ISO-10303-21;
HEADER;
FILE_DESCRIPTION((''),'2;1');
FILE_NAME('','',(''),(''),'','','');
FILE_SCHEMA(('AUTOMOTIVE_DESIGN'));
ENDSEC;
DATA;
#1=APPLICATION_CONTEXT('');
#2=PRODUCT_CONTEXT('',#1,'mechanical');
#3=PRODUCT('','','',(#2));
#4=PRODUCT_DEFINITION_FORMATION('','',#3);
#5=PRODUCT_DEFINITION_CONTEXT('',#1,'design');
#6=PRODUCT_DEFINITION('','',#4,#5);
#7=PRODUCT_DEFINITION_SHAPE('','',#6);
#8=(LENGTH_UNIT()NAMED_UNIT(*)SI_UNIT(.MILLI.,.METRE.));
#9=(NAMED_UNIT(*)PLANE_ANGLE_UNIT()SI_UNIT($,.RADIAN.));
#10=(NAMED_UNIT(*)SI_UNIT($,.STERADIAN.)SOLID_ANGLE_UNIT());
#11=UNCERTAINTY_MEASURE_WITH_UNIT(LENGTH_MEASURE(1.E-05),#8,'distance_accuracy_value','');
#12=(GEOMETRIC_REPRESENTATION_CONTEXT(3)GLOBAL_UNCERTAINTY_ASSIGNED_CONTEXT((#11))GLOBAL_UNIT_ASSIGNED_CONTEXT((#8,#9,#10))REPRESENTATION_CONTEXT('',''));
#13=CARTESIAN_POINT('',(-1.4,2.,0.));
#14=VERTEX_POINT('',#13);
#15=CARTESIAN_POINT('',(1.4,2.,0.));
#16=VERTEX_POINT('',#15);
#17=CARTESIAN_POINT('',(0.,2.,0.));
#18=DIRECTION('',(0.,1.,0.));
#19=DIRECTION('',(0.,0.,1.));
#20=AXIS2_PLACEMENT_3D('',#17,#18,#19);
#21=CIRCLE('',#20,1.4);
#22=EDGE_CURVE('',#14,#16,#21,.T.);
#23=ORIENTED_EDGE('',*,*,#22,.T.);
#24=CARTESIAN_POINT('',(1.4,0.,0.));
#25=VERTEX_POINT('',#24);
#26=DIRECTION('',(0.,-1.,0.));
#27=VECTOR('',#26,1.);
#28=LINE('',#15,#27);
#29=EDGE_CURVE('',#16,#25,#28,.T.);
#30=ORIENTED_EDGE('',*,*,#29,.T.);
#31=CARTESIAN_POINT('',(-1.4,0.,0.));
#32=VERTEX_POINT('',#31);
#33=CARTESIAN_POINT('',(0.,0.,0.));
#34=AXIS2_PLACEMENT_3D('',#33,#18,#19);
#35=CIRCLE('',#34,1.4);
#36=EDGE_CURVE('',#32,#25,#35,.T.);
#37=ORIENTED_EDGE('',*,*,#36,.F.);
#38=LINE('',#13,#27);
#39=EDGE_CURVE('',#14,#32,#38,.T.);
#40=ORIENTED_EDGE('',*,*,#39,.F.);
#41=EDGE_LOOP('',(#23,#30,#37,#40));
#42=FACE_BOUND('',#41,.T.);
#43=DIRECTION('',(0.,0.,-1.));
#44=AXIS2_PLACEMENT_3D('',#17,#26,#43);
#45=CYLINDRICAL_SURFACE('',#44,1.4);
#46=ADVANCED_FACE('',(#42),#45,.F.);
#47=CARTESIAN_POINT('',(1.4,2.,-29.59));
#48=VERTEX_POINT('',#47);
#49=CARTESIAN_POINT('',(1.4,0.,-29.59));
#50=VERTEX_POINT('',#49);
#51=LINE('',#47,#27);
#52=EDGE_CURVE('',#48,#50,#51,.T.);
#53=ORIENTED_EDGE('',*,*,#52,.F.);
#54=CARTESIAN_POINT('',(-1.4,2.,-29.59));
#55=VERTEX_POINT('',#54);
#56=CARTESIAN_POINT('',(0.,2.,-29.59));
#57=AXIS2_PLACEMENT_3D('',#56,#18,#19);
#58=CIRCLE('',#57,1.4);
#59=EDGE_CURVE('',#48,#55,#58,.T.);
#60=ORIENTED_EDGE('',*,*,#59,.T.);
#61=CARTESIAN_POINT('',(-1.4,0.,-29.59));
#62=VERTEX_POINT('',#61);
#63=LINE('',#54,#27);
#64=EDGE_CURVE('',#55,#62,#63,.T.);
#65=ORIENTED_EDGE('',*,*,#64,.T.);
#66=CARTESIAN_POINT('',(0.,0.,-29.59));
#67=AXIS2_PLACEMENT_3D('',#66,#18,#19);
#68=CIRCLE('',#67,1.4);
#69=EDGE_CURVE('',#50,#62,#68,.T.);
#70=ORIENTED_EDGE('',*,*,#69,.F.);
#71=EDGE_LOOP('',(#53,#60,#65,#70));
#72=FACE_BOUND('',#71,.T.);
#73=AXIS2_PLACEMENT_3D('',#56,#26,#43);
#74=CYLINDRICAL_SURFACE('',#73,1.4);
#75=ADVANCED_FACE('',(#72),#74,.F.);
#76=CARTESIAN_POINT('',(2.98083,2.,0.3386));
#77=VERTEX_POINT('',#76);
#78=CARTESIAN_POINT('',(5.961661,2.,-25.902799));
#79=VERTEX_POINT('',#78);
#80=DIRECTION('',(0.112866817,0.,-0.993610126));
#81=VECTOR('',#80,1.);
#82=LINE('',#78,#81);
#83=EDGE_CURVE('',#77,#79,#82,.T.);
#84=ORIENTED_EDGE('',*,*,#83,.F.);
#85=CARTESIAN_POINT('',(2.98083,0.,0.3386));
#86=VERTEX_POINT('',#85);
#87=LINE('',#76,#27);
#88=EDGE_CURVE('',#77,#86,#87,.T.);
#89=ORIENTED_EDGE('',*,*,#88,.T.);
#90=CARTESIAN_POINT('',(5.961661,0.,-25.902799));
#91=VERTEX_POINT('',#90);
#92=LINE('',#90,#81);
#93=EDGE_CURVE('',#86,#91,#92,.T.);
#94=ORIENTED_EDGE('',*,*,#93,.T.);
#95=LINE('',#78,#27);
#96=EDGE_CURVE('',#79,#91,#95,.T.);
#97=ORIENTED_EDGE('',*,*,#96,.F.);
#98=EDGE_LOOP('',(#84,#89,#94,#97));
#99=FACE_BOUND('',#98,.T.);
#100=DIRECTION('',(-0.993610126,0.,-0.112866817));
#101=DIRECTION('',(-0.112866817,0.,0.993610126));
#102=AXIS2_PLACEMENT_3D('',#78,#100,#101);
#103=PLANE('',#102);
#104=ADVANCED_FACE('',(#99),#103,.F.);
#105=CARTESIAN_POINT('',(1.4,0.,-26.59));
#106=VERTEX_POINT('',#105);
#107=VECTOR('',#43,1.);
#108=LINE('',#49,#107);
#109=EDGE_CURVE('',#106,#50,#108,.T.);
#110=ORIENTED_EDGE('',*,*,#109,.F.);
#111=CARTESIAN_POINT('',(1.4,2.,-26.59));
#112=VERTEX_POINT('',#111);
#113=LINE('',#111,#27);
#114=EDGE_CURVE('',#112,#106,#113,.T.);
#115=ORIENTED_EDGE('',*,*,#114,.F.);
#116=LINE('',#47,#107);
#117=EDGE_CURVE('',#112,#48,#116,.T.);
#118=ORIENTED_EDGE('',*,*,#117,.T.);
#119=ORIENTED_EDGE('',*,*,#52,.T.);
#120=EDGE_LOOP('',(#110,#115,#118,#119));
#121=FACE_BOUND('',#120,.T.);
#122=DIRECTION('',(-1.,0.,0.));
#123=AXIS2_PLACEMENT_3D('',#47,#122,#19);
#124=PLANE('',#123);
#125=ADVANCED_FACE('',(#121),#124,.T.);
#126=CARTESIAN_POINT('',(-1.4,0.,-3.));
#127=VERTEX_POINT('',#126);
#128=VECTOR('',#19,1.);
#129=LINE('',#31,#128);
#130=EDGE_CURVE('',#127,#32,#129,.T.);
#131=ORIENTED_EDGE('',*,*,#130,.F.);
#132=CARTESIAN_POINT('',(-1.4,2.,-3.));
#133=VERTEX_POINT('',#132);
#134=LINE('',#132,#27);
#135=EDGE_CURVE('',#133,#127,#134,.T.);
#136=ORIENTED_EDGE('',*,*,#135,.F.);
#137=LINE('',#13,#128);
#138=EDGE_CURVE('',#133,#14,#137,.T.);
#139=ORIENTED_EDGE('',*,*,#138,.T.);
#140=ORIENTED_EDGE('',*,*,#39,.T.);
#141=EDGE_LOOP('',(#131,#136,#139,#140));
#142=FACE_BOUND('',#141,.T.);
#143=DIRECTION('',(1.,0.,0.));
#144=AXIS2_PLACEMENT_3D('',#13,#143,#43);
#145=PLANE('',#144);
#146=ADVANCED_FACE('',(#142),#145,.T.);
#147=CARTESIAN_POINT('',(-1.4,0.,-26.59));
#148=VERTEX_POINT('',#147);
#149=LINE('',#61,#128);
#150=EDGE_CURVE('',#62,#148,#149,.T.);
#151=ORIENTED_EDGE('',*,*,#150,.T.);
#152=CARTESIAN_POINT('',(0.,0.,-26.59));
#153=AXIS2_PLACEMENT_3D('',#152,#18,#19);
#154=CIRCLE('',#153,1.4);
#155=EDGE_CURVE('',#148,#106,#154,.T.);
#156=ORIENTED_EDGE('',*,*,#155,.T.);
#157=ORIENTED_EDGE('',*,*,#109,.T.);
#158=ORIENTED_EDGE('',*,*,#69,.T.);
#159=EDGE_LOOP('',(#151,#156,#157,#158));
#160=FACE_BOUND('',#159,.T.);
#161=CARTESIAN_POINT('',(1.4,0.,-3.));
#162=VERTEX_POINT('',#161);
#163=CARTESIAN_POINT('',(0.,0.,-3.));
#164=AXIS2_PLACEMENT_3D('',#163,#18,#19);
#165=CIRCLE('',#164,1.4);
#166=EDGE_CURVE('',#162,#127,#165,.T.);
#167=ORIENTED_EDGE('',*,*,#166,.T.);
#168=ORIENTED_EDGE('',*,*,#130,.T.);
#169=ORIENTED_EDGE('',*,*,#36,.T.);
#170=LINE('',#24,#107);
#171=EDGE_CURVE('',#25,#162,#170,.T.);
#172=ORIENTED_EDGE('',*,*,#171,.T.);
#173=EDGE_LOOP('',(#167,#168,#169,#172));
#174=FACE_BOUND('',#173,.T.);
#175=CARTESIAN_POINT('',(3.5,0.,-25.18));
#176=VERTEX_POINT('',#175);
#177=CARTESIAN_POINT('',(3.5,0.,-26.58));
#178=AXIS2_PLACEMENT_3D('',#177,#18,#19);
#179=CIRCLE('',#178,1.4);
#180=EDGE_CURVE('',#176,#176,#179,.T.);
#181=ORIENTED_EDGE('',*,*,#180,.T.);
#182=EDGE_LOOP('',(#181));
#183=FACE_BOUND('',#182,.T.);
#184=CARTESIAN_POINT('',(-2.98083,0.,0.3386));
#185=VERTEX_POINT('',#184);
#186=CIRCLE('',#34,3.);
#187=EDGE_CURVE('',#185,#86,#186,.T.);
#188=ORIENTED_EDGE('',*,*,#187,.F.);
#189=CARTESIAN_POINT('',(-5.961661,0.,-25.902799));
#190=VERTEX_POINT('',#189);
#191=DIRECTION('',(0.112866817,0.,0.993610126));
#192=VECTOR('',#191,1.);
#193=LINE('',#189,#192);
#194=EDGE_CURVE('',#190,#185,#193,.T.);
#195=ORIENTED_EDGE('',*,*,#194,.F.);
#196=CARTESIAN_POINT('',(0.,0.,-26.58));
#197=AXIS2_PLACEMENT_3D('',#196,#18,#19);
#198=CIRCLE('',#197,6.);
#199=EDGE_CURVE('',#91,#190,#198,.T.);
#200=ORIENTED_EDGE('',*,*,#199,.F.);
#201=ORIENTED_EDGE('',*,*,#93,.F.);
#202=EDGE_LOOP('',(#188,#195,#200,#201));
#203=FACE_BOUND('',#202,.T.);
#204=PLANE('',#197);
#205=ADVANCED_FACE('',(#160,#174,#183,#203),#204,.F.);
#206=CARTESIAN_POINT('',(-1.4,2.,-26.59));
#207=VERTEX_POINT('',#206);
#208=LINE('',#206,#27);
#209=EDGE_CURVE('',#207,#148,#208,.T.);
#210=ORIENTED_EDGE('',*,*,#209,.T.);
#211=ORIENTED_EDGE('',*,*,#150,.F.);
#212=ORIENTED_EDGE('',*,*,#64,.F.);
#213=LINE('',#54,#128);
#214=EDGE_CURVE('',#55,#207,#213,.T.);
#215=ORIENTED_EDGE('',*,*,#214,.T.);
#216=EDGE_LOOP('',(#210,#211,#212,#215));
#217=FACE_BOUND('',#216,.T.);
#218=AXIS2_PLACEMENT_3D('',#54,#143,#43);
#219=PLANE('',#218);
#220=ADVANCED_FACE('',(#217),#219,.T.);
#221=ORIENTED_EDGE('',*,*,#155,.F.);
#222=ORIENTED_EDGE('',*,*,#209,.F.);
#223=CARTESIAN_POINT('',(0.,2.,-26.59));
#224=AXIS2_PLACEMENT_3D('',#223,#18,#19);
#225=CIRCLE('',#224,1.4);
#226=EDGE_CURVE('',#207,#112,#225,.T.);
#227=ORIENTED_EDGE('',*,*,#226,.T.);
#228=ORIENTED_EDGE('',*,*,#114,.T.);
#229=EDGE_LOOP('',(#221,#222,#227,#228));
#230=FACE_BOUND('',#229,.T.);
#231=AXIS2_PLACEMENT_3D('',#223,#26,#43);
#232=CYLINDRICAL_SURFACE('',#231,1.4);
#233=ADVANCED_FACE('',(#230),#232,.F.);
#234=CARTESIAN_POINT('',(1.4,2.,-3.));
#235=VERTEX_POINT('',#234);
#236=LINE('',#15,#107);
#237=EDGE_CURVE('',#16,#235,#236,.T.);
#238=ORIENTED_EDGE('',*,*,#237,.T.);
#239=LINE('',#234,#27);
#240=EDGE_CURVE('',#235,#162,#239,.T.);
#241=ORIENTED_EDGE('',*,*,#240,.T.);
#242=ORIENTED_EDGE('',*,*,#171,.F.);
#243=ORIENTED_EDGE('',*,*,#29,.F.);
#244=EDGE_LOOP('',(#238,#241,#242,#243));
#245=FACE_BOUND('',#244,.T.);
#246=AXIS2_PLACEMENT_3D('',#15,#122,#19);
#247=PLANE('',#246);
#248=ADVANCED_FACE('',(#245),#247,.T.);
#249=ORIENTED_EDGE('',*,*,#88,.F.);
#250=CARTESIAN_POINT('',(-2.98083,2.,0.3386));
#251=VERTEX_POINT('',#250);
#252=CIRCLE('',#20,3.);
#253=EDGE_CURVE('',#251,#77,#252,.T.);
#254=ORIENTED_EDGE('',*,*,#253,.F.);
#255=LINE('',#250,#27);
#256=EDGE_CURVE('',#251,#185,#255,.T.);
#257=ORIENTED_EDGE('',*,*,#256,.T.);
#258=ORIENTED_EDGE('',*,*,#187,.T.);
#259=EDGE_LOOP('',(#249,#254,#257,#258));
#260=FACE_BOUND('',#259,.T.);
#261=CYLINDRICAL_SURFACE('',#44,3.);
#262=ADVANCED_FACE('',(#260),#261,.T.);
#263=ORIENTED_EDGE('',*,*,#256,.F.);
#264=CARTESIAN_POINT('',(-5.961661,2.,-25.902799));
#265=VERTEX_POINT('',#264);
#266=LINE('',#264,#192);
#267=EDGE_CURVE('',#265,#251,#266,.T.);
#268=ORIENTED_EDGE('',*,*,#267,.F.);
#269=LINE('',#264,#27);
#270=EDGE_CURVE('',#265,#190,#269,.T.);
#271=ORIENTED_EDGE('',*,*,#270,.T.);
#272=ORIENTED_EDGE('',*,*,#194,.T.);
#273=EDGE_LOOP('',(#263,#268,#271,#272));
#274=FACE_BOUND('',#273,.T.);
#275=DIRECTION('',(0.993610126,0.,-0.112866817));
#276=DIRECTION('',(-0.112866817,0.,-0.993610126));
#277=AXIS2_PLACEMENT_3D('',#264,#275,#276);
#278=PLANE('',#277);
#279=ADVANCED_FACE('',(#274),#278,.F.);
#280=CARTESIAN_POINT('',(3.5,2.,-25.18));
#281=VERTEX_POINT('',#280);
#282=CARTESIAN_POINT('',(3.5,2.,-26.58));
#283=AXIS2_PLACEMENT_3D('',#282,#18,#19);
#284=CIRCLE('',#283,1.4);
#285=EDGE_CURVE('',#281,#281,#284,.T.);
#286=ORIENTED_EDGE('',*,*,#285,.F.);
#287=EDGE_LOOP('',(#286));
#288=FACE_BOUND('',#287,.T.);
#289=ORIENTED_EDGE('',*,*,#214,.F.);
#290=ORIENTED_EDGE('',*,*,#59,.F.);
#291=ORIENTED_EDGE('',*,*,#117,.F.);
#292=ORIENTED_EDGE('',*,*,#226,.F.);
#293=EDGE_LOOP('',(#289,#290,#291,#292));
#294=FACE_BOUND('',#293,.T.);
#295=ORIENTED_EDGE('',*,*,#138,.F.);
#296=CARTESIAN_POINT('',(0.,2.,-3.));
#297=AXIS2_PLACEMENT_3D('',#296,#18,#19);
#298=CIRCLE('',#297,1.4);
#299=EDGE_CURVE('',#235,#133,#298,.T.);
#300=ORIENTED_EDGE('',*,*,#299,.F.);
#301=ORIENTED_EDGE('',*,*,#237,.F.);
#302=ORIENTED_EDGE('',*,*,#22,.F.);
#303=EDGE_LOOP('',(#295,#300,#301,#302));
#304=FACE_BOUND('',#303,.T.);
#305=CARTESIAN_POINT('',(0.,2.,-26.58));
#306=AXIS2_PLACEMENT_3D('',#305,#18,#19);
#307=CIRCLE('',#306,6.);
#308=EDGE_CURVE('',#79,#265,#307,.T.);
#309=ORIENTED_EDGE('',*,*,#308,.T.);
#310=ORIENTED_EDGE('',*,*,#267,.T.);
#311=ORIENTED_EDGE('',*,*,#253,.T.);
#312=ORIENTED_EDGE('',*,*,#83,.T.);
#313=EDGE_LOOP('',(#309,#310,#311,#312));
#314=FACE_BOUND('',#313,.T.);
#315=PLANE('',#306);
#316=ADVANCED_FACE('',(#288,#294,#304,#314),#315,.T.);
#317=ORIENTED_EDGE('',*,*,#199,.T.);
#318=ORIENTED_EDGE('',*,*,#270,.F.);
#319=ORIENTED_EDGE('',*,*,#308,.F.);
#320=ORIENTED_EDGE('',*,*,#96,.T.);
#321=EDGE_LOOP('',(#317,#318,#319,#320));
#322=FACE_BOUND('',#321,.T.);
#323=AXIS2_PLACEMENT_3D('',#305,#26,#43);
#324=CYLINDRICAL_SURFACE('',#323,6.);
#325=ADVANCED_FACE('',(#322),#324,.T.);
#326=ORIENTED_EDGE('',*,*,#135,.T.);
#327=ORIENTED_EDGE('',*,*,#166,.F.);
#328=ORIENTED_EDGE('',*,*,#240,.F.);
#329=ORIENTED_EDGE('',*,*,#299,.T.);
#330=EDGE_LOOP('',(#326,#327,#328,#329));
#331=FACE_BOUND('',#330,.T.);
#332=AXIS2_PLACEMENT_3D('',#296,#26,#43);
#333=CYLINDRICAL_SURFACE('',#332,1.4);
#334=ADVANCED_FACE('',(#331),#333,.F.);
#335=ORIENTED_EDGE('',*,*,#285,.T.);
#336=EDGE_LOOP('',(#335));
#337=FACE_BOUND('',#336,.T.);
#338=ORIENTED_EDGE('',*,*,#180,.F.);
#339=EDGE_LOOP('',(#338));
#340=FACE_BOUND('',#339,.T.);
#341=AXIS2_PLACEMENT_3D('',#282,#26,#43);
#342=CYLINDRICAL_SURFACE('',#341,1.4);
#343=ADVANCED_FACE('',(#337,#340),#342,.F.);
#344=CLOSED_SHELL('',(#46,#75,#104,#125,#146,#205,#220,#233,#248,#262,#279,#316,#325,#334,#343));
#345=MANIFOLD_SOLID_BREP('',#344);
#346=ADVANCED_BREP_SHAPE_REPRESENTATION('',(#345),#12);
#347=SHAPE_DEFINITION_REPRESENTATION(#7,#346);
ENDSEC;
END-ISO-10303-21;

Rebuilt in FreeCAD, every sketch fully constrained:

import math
import FreeCAD as App
import Part
import Sketcher
Q = App.Units.Quantity

doc = App.newDocument("Part")
body = doc.addObject("PartDesign::Body", "Body")

# Sketch on XZ plane
sketch1 = body.newObject("Sketcher::SketchObject", "Sketch")
sketch1.AttachmentSupport = (doc.getObject("XZ_Plane"), [""])
sketch1.MapMode = "FlatFace"
sketch1.addGeometry(Part.LineSegment(App.Vector(-5.961661, -25.902799, 0), App.Vector(-2.98083, 0.3386, 0)), False)
sketch1.addGeometry(Part.ArcOfCircle(Part.Circle(App.Vector(0, 0, 0), App.Vector(0, 0, 1), 3), math.radians(6.480602), math.radians(173.519398)), False)
sketch1.addGeometry(Part.LineSegment(App.Vector(2.98083, 0.3386, 0), App.Vector(5.961661, -25.902799, 0)), False)
sketch1.addGeometry(Part.ArcOfCircle(Part.Circle(App.Vector(0, -26.58, 0), App.Vector(0, 0, 1), 6), math.radians(173.519398), math.radians(366.480602)), False)
sketch1.addGeometry(Part.ArcOfCircle(Part.Circle(App.Vector(0, 0, 0), App.Vector(0, 0, 1), 1.4), math.radians(0), math.radians(180)), False)
sketch1.addGeometry(Part.LineSegment(App.Vector(-1.4, 0, 0), App.Vector(-1.4, -3, 0)), False)
sketch1.addGeometry(Part.ArcOfCircle(Part.Circle(App.Vector(0, -3, 0), App.Vector(0, 0, 1), 1.4), math.radians(180), math.radians(360)), False)
sketch1.addGeometry(Part.LineSegment(App.Vector(1.4, -3, 0), App.Vector(1.4, 0, 0)), False)
sketch1.addGeometry(Part.ArcOfCircle(Part.Circle(App.Vector(0, -29.59, 0), App.Vector(0, 0, 1), 1.4), math.radians(180), math.radians(360)), False)
sketch1.addGeometry(Part.LineSegment(App.Vector(1.4, -29.59, 0), App.Vector(1.4, -26.59, 0)), False)
sketch1.addGeometry(Part.ArcOfCircle(Part.Circle(App.Vector(0, -26.59, 0), App.Vector(0, 0, 1), 1.4), math.radians(0), math.radians(180)), False)
sketch1.addGeometry(Part.LineSegment(App.Vector(-1.4, -26.59, 0), App.Vector(-1.4, -29.59, 0)), False)
sketch1.addGeometry(Part.Circle(App.Vector(3.5, -26.58, 0), App.Vector(0, 0, 1), 1.4), False)
sketch1.addConstraint(Sketcher.Constraint("Tangent", 0, 2, 1, 2))
sketch1.addConstraint(Sketcher.Constraint("Tangent", 1, 1, 2, 1))
sketch1.addConstraint(Sketcher.Constraint("Tangent", 2, 2, 3, 2))
sketch1.addConstraint(Sketcher.Constraint("Tangent", 3, 1, 0, 1))
sketch1.addConstraint(Sketcher.Constraint("Tangent", 4, 2, 5, 1))
sketch1.addConstraint(Sketcher.Constraint("Tangent", 5, 2, 6, 1))
sketch1.addConstraint(Sketcher.Constraint("Tangent", 6, 2, 7, 1))
sketch1.addConstraint(Sketcher.Constraint("Tangent", 7, 2, 4, 1))
sketch1.addConstraint(Sketcher.Constraint("Tangent", 8, 2, 9, 1))
sketch1.addConstraint(Sketcher.Constraint("Tangent", 9, 2, 10, 1))
sketch1.addConstraint(Sketcher.Constraint("Tangent", 10, 2, 11, 1))
sketch1.addConstraint(Sketcher.Constraint("Tangent", 11, 2, 8, 1))
sketch1.addConstraint(Sketcher.Constraint("Vertical", 5))
sketch1.addConstraint(Sketcher.Constraint("Vertical", 7))
sketch1.addConstraint(Sketcher.Constraint("Vertical", 9))
sketch1.addConstraint(Sketcher.Constraint("Vertical", 11))
sketch1.addConstraint(Sketcher.Constraint("Coincident", 1, 3, -1, 1))
sketch1.addConstraint(Sketcher.Constraint("Coincident", 4, 3, -1, 1))
sketch1.addConstraint(Sketcher.Constraint("Equal", 6, 8))
sketch1.addConstraint(Sketcher.Constraint("Equal", 10, 12))
sketch1.addConstraint(Sketcher.Constraint("PointOnObject", 3, 3, -2))
sketch1.addConstraint(Sketcher.Constraint("PointOnObject", 8, 3, -2))
sketch1.addConstraint(Sketcher.Constraint("Horizontal", 3, 3, 12, 3))
sketch1.addConstraint(Sketcher.Constraint("Equal", 7, 9))
sketch1.addConstraint(Sketcher.Constraint("Radius", 1, Q("3 mm")))
sketch1.addConstraint(Sketcher.Constraint("Radius", 3, Q("6 mm")))
sketch1.addConstraint(Sketcher.Constraint("Diameter", 12, Q("2.8 mm")))
sketch1.addConstraint(Sketcher.Constraint("DistanceY", 5, 2, 5, 1, Q("3 mm")))
sketch1.addConstraint(Sketcher.Constraint("DistanceX", -1, 1, 12, 3, Q("3.5 mm")))
sketch1.addConstraint(Sketcher.Constraint("DistanceY", 3, 3, -1, 1, Q("26.58 mm")))
sketch1.addConstraint(Sketcher.Constraint("DistanceY", 8, 3, -1, 1, Q("29.59 mm")))
pad1 = body.newObject("PartDesign::Pad", "Pad")
pad1.Profile = sketch1
pad1.Length = 2
pad1.Reversed = True

doc.recompute()
